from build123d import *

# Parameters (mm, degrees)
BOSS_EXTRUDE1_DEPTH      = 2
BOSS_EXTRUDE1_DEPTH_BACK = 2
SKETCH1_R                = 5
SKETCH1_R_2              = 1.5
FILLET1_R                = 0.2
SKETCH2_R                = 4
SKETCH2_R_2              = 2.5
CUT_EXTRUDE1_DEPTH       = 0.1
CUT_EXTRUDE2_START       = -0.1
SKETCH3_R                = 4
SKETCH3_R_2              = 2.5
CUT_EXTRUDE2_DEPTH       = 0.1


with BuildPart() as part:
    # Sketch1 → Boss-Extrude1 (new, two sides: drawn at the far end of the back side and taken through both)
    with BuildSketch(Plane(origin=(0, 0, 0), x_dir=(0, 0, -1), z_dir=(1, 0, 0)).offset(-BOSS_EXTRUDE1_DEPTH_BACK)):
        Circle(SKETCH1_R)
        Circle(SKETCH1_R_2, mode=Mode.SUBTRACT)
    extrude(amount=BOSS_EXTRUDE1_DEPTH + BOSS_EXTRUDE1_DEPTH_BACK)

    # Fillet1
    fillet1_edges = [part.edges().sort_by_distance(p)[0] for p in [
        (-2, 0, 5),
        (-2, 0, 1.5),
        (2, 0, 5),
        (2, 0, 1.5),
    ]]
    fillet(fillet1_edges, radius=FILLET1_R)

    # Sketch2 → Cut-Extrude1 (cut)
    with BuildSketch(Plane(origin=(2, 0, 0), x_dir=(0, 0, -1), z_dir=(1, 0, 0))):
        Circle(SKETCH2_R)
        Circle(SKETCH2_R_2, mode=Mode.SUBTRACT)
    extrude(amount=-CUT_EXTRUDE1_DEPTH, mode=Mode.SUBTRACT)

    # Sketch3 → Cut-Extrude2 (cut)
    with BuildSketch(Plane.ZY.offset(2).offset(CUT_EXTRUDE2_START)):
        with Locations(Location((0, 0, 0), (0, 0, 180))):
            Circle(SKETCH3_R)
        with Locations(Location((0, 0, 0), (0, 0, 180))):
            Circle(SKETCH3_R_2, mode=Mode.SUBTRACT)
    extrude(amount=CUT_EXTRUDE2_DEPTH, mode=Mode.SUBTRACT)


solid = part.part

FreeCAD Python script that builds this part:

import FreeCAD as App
import Part
import Sketcher
from FreeCAD import Vector
Q = App.Units.Quantity


def edges_at(feature, points):
    """Names of the edges that pass closest to the given points."""
    edges = feature.Shape.Edges
    near = lambda p: min(range(len(edges)), key=lambda i: edges[i].distToShape(Part.Vertex(*p))[0])
    return sorted({f"Edge{near(p) + 1}" for p in points})

doc = App.newDocument("Part")
body = doc.addObject("PartDesign::Body", "Body")

# Sketch on YZ plane
sketch1 = body.newObject("Sketcher::SketchObject", "Sketch")
sketch1.AttachmentSupport = (doc.getObject("YZ_Plane"), [""])
sketch1.MapMode = "FlatFace"
sketch1.addGeometry([
    Part.Circle(Vector(0, 0, 0), Vector(0, 0, 1), 5),
    Part.Circle(Vector(0, 0, 0), Vector(0, 0, 1), 1.5),
], False)
sketch1.addConstraint([
    Sketcher.Constraint("Coincident", 0, 3, -1, 1),
    Sketcher.Constraint("Coincident", 1, 3, -1, 1),
    Sketcher.Constraint("Diameter", 0, Q("10 mm")),
    Sketcher.Constraint("Diameter", 1, Q("3 mm")),
])
pad1 = body.newObject("PartDesign::Pad", "Pad")
pad1.Profile = sketch1
pad1.Type = "TwoLengths"
pad1.Length = 2
pad1.Length2 = 2
doc.recompute()

fillet = body.newObject("PartDesign::Fillet", "Fillet")
fillet.Base = (pad1, edges_at(pad1, [
    (-2, 0, 5),
    (-2, 0, 1.5),
    (2, 0, 5),
    (2, 0, 1.5),
]))
fillet.Radius = 0.2

# Sketch on YZ plane
sketch2 = body.newObject("Sketcher::SketchObject", "Sketch001")
sketch2.AttachmentSupport = (doc.getObject("YZ_Plane"), [""])
sketch2.MapMode = "FlatFace"
sketch2.AttachmentOffset = App.Placement(Vector(0, 0, 2), App.Rotation())
sketch2.addGeometry([
    Part.Circle(Vector(0, 0, 0), Vector(0, 0, 1), 4),
    Part.Circle(Vector(0, 0, 0), Vector(0, 0, 1), 2.5),
], False)
sketch2.addConstraint([
    Sketcher.Constraint("Coincident", 0, 3, -1, 1),
    Sketcher.Constraint("Coincident", 1, 3, -1, 1),
    Sketcher.Constraint("Diameter", 0, Q("8 mm")),
    Sketcher.Constraint("Diameter", 1, Q("5 mm")),
])
pocket1 = body.newObject("PartDesign::Pocket", "Pocket")
pocket1.Profile = sketch2
pocket1.Length = 0.1

# Sketch on YZ plane
sketch3 = body.newObject("Sketcher::SketchObject", "Sketch002")
sketch3.AttachmentSupport = (doc.getObject("YZ_Plane"), [""])
sketch3.MapMode = "FlatFace"
sketch3.AttachmentOffset = App.Placement(Vector(0, 0, -1.9), App.Rotation())
sketch3.addGeometry([
    Part.Circle(Vector(0, 0, 0), Vector(0, 0, 1), 4),
    Part.Circle(Vector(0, 0, 0), Vector(0, 0, 1), 2.5),
], False)
sketch3.addConstraint([
    Sketcher.Constraint("Coincident", 0, 3, -1, 1),
    Sketcher.Constraint("Coincident", 1, 3, -1, 1),
    Sketcher.Constraint("Diameter", 0, Q("8 mm")),
    Sketcher.Constraint("Diameter", 1, Q("5 mm")),
])
pocket2 = body.newObject("PartDesign::Pocket", "Pocket001")
pocket2.Profile = sketch3
pocket2.Length = 0.1

doc.recompute()
